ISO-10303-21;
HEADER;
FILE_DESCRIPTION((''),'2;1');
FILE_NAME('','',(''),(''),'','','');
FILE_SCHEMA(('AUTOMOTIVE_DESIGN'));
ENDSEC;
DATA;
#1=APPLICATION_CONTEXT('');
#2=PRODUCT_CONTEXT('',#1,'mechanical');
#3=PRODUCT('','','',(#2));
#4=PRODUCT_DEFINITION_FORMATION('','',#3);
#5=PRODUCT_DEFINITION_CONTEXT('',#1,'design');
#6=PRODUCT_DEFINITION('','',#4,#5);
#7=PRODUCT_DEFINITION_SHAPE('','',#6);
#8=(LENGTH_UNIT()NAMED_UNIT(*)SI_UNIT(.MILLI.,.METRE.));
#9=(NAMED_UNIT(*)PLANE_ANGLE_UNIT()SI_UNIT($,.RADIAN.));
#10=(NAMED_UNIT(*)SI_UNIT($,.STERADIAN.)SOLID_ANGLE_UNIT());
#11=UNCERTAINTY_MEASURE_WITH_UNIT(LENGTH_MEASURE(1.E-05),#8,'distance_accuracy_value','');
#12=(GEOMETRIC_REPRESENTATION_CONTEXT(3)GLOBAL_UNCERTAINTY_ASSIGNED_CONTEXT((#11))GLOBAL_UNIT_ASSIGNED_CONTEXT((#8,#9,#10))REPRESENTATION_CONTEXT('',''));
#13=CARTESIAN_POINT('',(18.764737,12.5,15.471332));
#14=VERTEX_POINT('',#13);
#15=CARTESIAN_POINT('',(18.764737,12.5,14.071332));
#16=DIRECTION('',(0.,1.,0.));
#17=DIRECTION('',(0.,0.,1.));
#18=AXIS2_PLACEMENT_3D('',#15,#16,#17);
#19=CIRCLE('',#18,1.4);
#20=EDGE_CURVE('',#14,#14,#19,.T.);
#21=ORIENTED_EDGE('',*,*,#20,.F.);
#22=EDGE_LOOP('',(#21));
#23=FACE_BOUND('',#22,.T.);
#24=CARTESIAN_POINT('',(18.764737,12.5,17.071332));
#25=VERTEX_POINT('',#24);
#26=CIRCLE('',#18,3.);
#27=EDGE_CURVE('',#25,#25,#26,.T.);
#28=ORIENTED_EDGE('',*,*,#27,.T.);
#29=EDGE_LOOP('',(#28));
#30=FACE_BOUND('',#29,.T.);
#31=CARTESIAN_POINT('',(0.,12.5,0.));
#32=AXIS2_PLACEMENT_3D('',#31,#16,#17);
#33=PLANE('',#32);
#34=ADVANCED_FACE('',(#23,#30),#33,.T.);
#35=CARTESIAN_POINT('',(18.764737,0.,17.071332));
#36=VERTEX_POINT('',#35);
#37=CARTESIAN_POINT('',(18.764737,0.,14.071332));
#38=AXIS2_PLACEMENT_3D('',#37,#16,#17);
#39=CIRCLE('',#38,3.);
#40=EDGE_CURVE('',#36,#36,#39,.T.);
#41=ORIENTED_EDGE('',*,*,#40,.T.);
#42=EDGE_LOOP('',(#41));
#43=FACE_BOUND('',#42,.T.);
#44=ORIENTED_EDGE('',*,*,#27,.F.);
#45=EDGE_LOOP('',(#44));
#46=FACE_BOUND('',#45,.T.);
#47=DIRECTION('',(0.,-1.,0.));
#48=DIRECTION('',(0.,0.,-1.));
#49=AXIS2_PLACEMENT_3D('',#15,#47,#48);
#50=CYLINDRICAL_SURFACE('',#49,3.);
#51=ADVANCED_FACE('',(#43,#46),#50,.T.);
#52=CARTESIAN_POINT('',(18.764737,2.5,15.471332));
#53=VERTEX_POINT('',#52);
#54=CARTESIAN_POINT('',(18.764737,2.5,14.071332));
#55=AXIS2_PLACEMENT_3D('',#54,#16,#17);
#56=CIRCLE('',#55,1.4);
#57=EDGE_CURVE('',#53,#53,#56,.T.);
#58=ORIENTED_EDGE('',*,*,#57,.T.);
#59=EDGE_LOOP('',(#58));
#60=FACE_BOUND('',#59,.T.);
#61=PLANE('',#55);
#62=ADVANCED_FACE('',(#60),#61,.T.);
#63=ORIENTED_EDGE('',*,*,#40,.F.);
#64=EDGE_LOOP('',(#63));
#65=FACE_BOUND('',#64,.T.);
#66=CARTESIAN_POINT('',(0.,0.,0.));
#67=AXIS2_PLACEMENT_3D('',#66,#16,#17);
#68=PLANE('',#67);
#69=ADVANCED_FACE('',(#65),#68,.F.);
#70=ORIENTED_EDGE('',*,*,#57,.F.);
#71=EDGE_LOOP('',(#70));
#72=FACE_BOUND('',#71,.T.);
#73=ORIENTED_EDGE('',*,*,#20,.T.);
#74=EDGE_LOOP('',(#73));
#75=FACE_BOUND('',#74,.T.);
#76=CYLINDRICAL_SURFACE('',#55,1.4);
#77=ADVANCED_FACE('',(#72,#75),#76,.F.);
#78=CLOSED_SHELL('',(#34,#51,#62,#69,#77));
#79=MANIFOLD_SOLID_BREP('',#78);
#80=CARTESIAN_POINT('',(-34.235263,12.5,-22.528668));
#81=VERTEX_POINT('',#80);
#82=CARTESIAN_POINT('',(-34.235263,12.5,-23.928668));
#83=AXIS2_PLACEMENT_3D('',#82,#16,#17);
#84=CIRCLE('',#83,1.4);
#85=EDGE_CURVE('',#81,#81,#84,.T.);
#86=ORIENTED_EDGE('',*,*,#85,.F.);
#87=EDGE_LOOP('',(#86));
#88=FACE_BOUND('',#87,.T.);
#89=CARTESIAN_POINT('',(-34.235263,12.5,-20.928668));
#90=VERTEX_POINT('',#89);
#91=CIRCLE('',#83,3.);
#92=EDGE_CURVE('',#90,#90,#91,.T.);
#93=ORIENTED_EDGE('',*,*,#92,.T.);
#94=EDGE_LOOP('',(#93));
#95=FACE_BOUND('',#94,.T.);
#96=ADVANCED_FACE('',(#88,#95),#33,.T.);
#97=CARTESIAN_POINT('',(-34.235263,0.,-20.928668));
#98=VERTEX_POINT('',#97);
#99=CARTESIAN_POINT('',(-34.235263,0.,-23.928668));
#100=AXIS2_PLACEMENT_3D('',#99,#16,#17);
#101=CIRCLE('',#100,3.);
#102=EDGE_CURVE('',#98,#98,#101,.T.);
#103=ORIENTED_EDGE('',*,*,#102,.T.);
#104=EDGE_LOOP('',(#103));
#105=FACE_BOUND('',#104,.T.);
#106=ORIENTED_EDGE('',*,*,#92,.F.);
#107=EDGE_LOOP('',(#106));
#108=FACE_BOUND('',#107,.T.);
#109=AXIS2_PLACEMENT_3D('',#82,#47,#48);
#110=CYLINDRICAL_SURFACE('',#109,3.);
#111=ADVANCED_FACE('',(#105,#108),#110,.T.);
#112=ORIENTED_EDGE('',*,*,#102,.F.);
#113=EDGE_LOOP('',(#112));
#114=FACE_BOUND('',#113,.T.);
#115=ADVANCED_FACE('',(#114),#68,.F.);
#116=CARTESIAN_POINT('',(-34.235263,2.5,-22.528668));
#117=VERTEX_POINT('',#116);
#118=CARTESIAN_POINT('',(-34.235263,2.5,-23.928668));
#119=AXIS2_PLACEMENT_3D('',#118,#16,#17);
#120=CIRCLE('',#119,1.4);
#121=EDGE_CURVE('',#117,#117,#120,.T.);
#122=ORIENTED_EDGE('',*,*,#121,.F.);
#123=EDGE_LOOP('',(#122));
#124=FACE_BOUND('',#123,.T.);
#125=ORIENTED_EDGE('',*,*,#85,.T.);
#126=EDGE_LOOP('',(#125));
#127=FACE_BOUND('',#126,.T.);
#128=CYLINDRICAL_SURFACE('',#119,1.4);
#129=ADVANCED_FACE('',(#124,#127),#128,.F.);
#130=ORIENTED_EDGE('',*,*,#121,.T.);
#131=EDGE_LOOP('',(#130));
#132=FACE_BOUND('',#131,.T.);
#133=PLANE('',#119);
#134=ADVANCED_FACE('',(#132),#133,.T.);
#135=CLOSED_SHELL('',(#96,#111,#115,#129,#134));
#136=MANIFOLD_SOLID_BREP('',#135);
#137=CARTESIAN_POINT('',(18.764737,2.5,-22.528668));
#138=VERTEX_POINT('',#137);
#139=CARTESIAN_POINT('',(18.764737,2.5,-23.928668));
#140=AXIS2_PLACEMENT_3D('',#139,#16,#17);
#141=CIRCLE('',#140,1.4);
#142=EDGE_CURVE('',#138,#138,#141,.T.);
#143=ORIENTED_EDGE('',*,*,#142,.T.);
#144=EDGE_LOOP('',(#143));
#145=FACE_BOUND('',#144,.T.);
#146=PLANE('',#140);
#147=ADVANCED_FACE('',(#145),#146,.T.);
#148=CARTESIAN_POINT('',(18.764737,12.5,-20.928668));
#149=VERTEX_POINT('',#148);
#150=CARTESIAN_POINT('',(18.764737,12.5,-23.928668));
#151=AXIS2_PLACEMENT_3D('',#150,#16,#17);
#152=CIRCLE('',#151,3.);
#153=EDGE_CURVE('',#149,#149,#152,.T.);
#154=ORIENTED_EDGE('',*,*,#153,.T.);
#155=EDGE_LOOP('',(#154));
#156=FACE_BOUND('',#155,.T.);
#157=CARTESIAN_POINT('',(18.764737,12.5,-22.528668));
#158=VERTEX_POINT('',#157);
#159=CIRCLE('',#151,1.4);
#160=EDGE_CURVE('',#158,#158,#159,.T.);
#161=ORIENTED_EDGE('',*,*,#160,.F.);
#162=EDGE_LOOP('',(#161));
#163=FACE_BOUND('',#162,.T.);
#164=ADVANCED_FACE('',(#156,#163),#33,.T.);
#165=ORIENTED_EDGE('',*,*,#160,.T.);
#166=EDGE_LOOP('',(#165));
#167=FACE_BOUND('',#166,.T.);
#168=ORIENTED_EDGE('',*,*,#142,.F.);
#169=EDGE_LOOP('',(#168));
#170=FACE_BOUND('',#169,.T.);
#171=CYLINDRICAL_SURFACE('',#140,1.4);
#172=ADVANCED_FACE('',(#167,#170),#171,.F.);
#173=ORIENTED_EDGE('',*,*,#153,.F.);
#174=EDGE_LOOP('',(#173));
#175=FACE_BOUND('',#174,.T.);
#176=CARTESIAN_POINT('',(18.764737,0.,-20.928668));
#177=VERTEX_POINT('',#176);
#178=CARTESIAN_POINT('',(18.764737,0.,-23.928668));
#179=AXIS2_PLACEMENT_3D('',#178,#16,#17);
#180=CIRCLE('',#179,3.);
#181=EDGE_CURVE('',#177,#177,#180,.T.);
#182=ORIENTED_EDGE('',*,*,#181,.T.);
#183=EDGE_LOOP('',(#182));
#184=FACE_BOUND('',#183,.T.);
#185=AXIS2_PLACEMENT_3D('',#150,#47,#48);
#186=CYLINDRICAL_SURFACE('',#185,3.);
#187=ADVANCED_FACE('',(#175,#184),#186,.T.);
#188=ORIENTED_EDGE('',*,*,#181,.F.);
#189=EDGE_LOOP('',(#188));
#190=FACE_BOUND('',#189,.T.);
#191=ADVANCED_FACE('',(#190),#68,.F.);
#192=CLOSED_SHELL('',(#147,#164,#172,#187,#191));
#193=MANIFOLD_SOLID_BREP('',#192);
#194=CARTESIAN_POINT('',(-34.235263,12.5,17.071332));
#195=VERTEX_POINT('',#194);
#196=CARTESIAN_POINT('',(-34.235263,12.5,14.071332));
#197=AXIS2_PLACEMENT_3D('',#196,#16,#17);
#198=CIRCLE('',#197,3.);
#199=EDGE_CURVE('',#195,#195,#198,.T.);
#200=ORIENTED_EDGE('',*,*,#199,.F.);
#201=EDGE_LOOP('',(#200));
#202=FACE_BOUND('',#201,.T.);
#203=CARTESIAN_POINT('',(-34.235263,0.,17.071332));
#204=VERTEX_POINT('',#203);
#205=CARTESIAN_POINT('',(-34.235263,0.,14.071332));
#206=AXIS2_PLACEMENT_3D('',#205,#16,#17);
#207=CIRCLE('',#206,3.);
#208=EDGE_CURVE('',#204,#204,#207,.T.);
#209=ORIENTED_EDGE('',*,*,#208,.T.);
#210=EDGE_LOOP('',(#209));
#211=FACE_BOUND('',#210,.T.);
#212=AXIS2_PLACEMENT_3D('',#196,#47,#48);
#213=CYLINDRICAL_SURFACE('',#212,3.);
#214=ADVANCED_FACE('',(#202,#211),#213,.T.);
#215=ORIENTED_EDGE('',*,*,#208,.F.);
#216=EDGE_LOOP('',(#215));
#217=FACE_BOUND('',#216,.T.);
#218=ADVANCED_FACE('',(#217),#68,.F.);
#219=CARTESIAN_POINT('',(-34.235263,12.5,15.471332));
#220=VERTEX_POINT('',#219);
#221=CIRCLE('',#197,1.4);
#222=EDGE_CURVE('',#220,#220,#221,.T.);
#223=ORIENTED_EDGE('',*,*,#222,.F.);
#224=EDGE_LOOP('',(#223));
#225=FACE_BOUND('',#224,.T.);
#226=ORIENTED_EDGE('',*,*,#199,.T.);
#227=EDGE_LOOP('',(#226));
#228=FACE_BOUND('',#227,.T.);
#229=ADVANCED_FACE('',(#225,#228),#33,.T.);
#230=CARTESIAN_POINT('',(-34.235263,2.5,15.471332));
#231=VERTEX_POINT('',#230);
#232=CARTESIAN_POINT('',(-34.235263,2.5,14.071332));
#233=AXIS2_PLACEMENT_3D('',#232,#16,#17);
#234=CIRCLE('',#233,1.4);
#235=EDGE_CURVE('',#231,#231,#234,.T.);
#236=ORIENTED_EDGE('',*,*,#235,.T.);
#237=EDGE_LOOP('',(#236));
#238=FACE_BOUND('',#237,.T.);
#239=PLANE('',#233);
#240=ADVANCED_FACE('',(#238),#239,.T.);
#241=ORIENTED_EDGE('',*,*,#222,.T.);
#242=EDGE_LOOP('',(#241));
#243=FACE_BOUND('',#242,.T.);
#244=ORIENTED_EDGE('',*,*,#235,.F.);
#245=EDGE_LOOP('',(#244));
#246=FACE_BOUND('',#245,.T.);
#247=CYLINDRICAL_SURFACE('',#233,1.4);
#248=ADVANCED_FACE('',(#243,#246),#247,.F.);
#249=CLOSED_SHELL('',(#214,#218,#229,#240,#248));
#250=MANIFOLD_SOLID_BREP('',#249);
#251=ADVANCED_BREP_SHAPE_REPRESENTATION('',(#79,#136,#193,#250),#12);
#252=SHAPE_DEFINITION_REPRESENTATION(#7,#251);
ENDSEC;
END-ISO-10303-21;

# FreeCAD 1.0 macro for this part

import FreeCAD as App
import Part
import Sketcher
from FreeCAD import Vector
Q = App.Units.Quantity

doc = App.newDocument("Part")
body = doc.addObject("PartDesign::Body", "Body")

sketch1 = doc.addObject("Sketcher::SketchObject", "Sketch")
body.addObject(sketch1)
sketch1.AttachmentSupport = (doc.XZ_Plane, [""])
sketch1.MapMode = "FlatFace"
sketch1.addGeometry(Part.Circle(Vector(-34.235263, -23.928668, 0), Vector(0, 0, 1), 3), False)
sketch1.addConstraint(Sketcher.Constraint("Diameter", 0, Q("6 mm")))
sketch1.addConstraint(Sketcher.Constraint("DistanceX", 0, 3, -1, 1, Q("34.235263 mm")))
sketch1.addConstraint(Sketcher.Constraint("DistanceY", 0, 3, -1, 1, Q("23.928668 mm")))
pad1 = doc.addObject("PartDesign::Pad", "Pad")
body.addObject(pad1)
pad1.Profile = sketch1
pad1.Length = 12.5
pad1.Reversed = True
body2 = doc.addObject("PartDesign::Body", "Body001")

sketch2 = doc.addObject("Sketcher::SketchObject", "Sketch001")
body2.addObject(sketch2)
sketch2.AttachmentSupport = (doc.getObject("XZ_Plane001"), [""])
sketch2.MapMode = "FlatFace"
sketch2.addGeometry(Part.Circle(Vector(-34.235263, 14.071332, 0), Vector(0, 0, 1), 3), False)
sketch2.addConstraint(Sketcher.Constraint("Diameter", 0, Q("6 mm")))
sketch2.addConstraint(Sketcher.Constraint("DistanceX", 0, 3, -1, 1, Q("34.235263 mm")))
sketch2.addConstraint(Sketcher.Constraint("DistanceY", -1, 1, 0, 3, Q("14.071332 mm")))
pad2 = doc.addObject("PartDesign::Pad", "Pad001")
body2.addObject(pad2)
pad2.Profile = sketch2
pad2.Length = 12.5
pad2.Reversed = True
body3 = doc.addObject("PartDesign::Body", "Body002")

sketch3 = doc.addObject("Sketcher::SketchObject", "Sketch002")
body3.addObject(sketch3)
sketch3.AttachmentSupport = (doc.getObject("XZ_Plane002"), [""])
sketch3.MapMode = "FlatFace"
sketch3.addGeometry(Part.Circle(Vector(18.764737, 14.071332, 0), Vector(0, 0, 1), 3), False)
sketch3.addConstraint(Sketcher.Constraint("Diameter", 0, Q("6 mm")))
sketch3.addConstraint(Sketcher.Constraint("DistanceX", -1, 1, 0, 3, Q("18.764737 mm")))
sketch3.addConstraint(Sketcher.Constraint("DistanceY", -1, 1, 0, 3, Q("14.071332 mm")))
pad3 = doc.addObject("PartDesign::Pad", "Pad002")
body3.addObject(pad3)
pad3.Profile = sketch3
pad3.Length = 12.5
pad3.Reversed = True
body4 = doc.addObject("PartDesign::Body", "Body003")

sketch4 = doc.addObject("Sketcher::SketchObject", "Sketch003")
body4.addObject(sketch4)
sketch4.AttachmentSupport = (doc.getObject("XZ_Plane003"), [""])
sketch4.MapMode = "FlatFace"
sketch4.addGeometry(Part.Circle(Vector(18.764737, -23.928668, 0), Vector(0, 0, 1), 3), False)
sketch4.addConstraint(Sketcher.Constraint("Diameter", 0, Q("6 mm")))
sketch4.addConstraint(Sketcher.Constraint("DistanceX", -1, 1, 0, 3, Q("18.764737 mm")))
sketch4.addConstraint(Sketcher.Constraint("DistanceY", 0, 3, -1, 1, Q("23.928668 mm")))
pad4 = doc.addObject("PartDesign::Pad", "Pad003")
body4.addObject(pad4)
pad4.Profile = sketch4
pad4.Length = 12.5
pad4.Reversed = True
body5 = doc.addObject("PartDesign::Body", "Body004")
body5.AllowCompound = True

sketch5 = doc.addObject("Sketcher::SketchObject", "Sketch004")
body5.addObject(sketch5)
sketch5.AttachmentSupport = (doc.getObject("XZ_Plane004"), [""])
sketch5.MapMode = "FlatFace"
sketch5.AttachmentOffset = App.Placement(Vector(0, 0, -12.5), App.Rotation())
sketch5.addGeometry(Part.Circle(Vector(-34.235263, -23.928668, 0), Vector(0, 0, 1), 1.4), False)
sketch5.addGeometry(Part.Circle(Vector(18.764737, -23.928668, 0), Vector(0, 0, 1), 1.4), False)
sketch5.addGeometry(Part.Circle(Vector(18.764737, 14.071332, 0), Vector(0, 0, 1), 1.4), False)
sketch5.addGeometry(Part.Circle(Vector(-34.235263, 14.071332, 0), Vector(0, 0, 1), 1.4), False)
sketch5.addConstraint(Sketcher.Constraint("Equal", 0, 1))
sketch5.addConstraint(Sketcher.Constraint("Equal", 1, 2))
sketch5.addConstraint(Sketcher.Constraint("Equal", 2, 3))
sketch5.addConstraint(Sketcher.Constraint("Horizontal", 0, 3, 1, 3))
sketch5.addConstraint(Sketcher.Constraint("Horizontal", 2, 3, 3, 3))
sketch5.addConstraint(Sketcher.Constraint("Vertical", 1, 3, 2, 3))
sketch5.addConstraint(Sketcher.Constraint("Vertical", 0, 3, 3, 3))
sketch5.addConstraint(Sketcher.Constraint("Diameter", 0, Q("2.8 mm")))
sketch5.addConstraint(Sketcher.Constraint("DistanceX", 0, 3, 1, 3, Q("53 mm")))
sketch5.addConstraint(Sketcher.Constraint("DistanceY", 1, 3, 2, 3, Q("38 mm")))
sketch5.addConstraint(Sketcher.Constraint("DistanceX", 0, 3, -1, 1, Q("34.235263 mm")))
sketch5.addConstraint(Sketcher.Constraint("DistanceY", 0, 3, -1, 1, Q("23.928668 mm")))
pad5 = doc.addObject("PartDesign::Pad", "Pad004")
body5.addObject(pad5)
pad5.Profile = sketch5
pad5.Length = 10
doc.recompute()

body6 = doc.addObject("PartDesign::Body", "Body005")
body6.BaseFeature = body5
boolean = doc.addObject("PartDesign::Boolean", "Boolean")
body.addObject(boolean)
boolean.Type = "Cut"
boolean.addObjects([body6])
doc.recompute()

body7 = doc.addObject("PartDesign::Body", "Body006")
body7.BaseFeature = body5
boolean2 = doc.addObject("PartDesign::Boolean", "Boolean001")
body2.addObject(boolean2)
boolean2.Type = "Cut"
boolean2.addObjects([body7])
doc.recompute()

body8 = doc.addObject("PartDesign::Body", "Body007")
body8.BaseFeature = body5
boolean3 = doc.addObject("PartDesign::Boolean", "Boolean002")
body3.addObject(boolean3)
boolean3.Type = "Cut"
boolean3.addObjects([body8])
doc.recompute()

boolean4 = doc.addObject("PartDesign::Boolean", "Boolean003")
body4.addObject(boolean4)
boolean4.Type = "Cut"
boolean4.addObjects([body5])

doc.recompute()
